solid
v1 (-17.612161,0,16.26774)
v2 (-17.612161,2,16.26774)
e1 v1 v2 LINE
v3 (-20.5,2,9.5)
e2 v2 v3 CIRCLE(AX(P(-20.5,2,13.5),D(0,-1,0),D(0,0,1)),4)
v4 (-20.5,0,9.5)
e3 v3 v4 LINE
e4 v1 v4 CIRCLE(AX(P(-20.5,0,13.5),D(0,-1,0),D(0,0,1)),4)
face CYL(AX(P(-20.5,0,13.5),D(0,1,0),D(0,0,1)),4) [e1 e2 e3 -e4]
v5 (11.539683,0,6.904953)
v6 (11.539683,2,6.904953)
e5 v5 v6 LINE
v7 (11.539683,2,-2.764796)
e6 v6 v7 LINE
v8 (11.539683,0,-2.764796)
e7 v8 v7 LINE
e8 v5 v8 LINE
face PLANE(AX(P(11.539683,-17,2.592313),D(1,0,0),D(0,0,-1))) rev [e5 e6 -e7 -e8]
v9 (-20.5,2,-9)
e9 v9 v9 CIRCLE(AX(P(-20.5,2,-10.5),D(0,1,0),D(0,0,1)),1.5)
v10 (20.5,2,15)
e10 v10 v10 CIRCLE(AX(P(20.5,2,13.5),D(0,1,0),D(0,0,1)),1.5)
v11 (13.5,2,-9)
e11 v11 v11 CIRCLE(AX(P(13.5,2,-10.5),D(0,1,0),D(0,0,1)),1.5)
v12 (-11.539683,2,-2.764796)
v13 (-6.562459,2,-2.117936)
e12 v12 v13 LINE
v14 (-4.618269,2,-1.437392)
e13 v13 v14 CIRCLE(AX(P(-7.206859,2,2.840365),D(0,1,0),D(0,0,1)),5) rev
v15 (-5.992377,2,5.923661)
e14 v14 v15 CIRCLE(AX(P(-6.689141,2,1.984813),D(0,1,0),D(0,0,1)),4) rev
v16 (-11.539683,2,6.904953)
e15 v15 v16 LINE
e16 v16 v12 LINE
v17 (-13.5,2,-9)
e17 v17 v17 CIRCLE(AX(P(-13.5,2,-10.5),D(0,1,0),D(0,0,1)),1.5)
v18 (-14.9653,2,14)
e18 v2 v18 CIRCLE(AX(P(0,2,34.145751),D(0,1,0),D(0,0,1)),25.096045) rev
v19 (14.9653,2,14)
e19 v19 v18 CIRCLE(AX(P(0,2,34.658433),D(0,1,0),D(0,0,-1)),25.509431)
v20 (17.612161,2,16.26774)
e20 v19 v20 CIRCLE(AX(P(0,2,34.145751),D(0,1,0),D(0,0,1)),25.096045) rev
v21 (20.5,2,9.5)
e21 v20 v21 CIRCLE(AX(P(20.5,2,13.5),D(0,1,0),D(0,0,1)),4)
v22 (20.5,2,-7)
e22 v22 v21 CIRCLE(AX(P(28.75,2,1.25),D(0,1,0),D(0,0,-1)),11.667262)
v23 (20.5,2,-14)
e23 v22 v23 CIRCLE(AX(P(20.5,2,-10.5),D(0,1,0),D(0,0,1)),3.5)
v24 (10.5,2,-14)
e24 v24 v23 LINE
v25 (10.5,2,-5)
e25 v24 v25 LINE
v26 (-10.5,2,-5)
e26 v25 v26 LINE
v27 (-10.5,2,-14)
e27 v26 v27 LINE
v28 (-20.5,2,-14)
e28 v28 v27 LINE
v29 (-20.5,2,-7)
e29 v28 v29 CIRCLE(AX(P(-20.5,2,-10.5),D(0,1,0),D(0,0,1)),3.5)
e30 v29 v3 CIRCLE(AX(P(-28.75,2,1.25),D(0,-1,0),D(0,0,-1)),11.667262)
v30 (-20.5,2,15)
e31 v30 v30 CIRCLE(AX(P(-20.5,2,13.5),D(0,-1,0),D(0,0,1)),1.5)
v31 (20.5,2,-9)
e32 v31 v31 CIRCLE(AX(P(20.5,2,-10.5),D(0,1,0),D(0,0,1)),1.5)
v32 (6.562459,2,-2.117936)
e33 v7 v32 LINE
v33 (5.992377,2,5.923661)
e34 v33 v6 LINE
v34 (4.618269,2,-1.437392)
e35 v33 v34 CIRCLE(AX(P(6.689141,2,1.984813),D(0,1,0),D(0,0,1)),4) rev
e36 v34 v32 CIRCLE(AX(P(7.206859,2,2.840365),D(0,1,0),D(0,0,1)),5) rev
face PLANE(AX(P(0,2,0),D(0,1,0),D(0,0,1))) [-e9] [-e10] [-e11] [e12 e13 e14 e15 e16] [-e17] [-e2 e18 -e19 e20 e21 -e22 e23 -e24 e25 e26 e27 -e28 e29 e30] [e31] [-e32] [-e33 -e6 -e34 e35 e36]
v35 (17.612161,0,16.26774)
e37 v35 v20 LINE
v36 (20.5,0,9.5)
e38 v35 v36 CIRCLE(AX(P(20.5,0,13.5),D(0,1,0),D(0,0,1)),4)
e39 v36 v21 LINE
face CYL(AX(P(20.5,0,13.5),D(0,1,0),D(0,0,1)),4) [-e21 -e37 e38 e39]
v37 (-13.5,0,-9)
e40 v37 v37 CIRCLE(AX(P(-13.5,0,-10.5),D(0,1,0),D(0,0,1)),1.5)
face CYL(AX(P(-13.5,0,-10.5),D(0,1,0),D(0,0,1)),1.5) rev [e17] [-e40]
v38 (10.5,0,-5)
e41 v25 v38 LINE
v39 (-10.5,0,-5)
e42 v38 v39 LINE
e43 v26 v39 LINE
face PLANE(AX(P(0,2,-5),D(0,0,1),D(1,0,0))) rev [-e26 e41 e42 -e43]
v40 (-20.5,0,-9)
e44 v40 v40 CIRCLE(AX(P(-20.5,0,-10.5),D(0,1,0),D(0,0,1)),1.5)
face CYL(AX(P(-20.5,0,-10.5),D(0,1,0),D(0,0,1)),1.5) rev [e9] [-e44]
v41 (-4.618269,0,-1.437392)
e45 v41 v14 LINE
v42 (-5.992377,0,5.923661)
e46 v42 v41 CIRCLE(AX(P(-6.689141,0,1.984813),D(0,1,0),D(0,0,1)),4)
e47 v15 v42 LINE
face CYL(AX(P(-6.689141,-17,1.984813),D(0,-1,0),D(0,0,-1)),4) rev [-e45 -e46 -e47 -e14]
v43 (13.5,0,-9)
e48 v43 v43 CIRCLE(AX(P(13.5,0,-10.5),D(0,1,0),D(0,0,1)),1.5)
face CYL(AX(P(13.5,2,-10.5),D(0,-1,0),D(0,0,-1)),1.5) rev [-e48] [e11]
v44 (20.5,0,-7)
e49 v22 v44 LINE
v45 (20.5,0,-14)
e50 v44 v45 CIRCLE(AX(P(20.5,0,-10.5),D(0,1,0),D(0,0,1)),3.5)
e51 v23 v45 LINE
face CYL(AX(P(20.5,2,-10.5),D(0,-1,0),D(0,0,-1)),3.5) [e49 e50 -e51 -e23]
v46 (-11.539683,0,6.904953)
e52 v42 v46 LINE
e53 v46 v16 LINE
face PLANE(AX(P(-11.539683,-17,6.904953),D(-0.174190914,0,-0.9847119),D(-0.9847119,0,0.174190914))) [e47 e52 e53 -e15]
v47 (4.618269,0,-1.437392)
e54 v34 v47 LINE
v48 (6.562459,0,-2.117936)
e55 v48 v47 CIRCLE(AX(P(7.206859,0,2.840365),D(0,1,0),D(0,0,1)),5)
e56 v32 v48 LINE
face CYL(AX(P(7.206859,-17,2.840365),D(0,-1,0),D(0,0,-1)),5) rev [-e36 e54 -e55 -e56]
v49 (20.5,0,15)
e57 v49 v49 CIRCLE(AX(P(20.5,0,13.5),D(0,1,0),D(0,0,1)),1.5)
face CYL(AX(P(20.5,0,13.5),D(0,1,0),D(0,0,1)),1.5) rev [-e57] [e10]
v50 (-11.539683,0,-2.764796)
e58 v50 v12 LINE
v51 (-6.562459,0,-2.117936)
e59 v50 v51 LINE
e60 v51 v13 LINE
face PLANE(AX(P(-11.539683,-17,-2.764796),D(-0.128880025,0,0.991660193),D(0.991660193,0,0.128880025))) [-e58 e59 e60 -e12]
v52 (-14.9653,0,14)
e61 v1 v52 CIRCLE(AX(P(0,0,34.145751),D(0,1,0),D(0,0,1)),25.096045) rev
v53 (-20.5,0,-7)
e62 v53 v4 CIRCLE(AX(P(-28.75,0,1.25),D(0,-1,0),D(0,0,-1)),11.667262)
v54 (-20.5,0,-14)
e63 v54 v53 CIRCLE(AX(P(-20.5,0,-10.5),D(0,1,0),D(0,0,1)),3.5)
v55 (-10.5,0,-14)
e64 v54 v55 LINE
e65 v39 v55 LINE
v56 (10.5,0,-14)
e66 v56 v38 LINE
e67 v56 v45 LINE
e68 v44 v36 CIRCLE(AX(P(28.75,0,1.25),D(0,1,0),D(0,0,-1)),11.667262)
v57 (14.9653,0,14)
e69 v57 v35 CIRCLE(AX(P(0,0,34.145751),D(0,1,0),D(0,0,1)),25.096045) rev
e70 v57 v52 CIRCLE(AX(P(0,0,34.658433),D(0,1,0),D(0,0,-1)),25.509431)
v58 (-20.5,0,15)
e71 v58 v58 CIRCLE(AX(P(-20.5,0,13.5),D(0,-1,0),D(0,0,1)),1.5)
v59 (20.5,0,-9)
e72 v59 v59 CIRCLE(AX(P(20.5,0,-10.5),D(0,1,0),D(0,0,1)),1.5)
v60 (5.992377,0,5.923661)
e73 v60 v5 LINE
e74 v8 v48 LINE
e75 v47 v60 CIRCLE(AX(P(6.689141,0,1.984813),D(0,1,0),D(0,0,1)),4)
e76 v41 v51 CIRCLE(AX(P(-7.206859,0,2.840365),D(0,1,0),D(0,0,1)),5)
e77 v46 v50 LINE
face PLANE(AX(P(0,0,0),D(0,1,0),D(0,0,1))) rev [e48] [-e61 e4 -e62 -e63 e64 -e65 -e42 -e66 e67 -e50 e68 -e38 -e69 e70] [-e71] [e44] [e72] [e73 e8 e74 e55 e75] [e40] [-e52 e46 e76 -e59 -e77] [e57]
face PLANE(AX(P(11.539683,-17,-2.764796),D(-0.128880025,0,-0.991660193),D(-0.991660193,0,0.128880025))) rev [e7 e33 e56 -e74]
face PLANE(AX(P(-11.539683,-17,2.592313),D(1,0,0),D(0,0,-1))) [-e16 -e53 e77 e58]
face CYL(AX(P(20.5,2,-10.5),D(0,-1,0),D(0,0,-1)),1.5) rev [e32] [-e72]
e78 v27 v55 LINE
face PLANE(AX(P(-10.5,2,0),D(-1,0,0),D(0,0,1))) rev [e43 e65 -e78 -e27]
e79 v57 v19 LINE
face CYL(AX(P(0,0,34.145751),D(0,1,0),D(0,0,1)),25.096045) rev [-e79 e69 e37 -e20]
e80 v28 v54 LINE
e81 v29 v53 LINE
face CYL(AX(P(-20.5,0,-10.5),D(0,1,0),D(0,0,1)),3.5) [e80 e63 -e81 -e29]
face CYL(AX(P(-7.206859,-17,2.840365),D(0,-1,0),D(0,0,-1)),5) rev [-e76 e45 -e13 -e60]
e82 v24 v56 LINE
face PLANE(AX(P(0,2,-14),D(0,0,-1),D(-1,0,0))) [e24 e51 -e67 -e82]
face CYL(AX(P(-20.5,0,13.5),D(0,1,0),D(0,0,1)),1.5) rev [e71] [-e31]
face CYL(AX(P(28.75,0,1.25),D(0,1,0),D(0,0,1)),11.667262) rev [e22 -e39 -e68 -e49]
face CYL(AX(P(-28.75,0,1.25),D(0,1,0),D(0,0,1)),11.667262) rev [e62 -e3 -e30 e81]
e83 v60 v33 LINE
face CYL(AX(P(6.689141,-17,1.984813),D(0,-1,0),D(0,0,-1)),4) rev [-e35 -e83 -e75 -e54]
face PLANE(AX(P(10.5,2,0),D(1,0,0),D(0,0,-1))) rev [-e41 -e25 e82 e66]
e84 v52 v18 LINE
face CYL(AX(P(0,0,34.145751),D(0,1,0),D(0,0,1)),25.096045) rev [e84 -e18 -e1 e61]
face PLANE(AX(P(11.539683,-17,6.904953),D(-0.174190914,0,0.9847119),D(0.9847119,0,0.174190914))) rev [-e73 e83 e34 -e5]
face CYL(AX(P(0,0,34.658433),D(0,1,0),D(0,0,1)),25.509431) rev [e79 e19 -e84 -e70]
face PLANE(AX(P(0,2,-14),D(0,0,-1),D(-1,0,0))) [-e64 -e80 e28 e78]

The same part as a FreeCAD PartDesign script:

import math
import FreeCAD as App
import Part
import Sketcher
from FreeCAD import Vector
Q = App.Units.Quantity


def edges_at(feature, points):
    """Names of the edges that pass closest to the given points."""
    edges = feature.Shape.Edges
    near = lambda p: min(range(len(edges)), key=lambda i: edges[i].distToShape(Part.Vertex(*p))[0])
    return sorted({f"Edge{near(p) + 1}" for p in points})


def add_polygon(sketch, points):
    """Adds a closed chain of lines whose ends are joined by coincident constraints."""
    first, n = sketch.GeometryCount, len(points)
    for a, b in zip(points, points[1:] + points[:1]):
        sketch.addGeometry(Part.LineSegment(App.Vector(*a, 0), App.Vector(*b, 0)), False)
    for i in range(n):
        sketch.addConstraint(Sketcher.Constraint("Coincident", first + i, 2, first + (i + 1) % n, 1))

doc = App.newDocument("Part")
body = doc.addObject("PartDesign::Body", "Body")

sketch1 = doc.addObject("Sketcher::SketchObject", "Sketch")
body.addObject(sketch1)
sketch1.AttachmentSupport = (doc.XZ_Plane, [""])
sketch1.MapMode = "FlatFace"
sketch1.addGeometry([
    Part.LineSegment(Vector(20.5, -14, 0), Vector(10.5, -14, 0)),
    Part.LineSegment(Vector(10.5, -14, 0), Vector(10.5, -5, 0)),
    Part.LineSegment(Vector(10.5, -5, 0), Vector(-10.5, -5, 0)),
    Part.LineSegment(Vector(-10.5, -5, 0), Vector(-10.5, -14, 0)),
    Part.LineSegment(Vector(-10.5, -14, 0), Vector(-20.5, -14, 0)),
    Part.LineSegment(Vector(-20.5, -14, 0), Vector(-20.5, 14, 0)),
    Part.ArcOfCircle(Part.Circle(Vector(0, 35.5, 0), Vector(0, 0, 1), 29.7), math.radians(-134), math.radians(-46)),
    Part.LineSegment(Vector(20.5, 14, 0), Vector(20.5, -7, 0)),
    Part.ArcOfCircle(Part.Circle(Vector(20.5, -10.5, 0), Vector(0, 0, 1), 3.5), math.radians(0), math.radians(90)),
    Part.ArcOfCircle(Part.Circle(Vector(20.5, -10.5, 0), Vector(0, 0, 1), 3.5), math.radians(-90), math.radians(0)),
    Part.Circle(Vector(13.5, -10.5, 0), Vector(0, 0, 1), 1.5),
    Part.ArcOfCircle(Part.Circle(Vector(20.5, -10.5, 0), Vector(0, 0, 1), 1.5), math.radians(90), math.radians(270)),
    Part.ArcOfCircle(Part.Circle(Vector(20.5, -10.5, 0), Vector(0, 0, 1), 1.5), math.radians(-90), math.radians(0)),
    Part.ArcOfCircle(Part.Circle(Vector(20.5, -10.5, 0), Vector(0, 0, 1), 1.5), math.radians(0), math.radians(90)),
], False)
sketch1.addConstraint([
    Sketcher.Constraint("Coincident", 0, 2, 1, 1),
    Sketcher.Constraint("Coincident", 1, 2, 2, 1),
    Sketcher.Constraint("Coincident", 2, 2, 3, 1),
    Sketcher.Constraint("Coincident", 3, 2, 4, 1),
    Sketcher.Constraint("Coincident", 4, 2, 5, 1),
    Sketcher.Constraint("Coincident", 5, 2, 6, 1),
    Sketcher.Constraint("Coincident", 6, 2, 7, 1),
    Sketcher.Constraint("Coincident", 7, 2, 8, 2),
    Sketcher.Constraint("Tangent", 8, 1, 9, 2),
    Sketcher.Constraint("Tangent", 9, 1, 0, 1),
    Sketcher.Constraint("Tangent", 11, 2, 12, 1),
    Sketcher.Constraint("Tangent", 12, 2, 13, 1),
    Sketcher.Constraint("Tangent", 13, 2, 11, 1),
    Sketcher.Constraint("Horizontal", 0),
    Sketcher.Constraint("Vertical", 1),
    Sketcher.Constraint("Horizontal", 2),
    Sketcher.Constraint("Vertical", 3),
    Sketcher.Constraint("Horizontal", 4),
    Sketcher.Constraint("Vertical", 5),
    Sketcher.Constraint("Vertical", 7),
    Sketcher.Constraint("Coincident", 11, 3, 8, 3),
    Sketcher.Constraint("Equal", 8, 9),
    Sketcher.Constraint("Equal", 10, 11),
    Sketcher.Constraint("Symmetric", 4, 2, 6, 2, -1, 1),
    Sketcher.Constraint("Symmetric", 5, 2, 9, 1, -1, 1),
    Sketcher.Constraint("Symmetric", 0, 2, 3, 2, -2),
    Sketcher.Constraint("Horizontal", 9, 3, 10, 3),
    Sketcher.Constraint("Horizontal", 13, 3, 8, 1),
    Sketcher.Constraint("Horizontal", 8, 1, 12, 2),
    Sketcher.Constraint("Vertical", 9, 1, 11, 2),
    Sketcher.Constraint("Vertical", 11, 2, 13, 2),
    Sketcher.Constraint("Equal", 2, 7),
    Sketcher.Constraint("Diameter", 10, Q("3 mm")),
    Sketcher.Constraint("Radius", 8, Q("3.5 mm")),
    Sketcher.Constraint("DistanceX", 0, 2, 0, 1, Q("10 mm")),
    Sketcher.Constraint("DistanceX", 2, 2, 2, 1, Q("21 mm")),
    Sketcher.Constraint("DistanceY", 1, 1, 1, 2, Q("9 mm")),
    Sketcher.Constraint("DistanceX", 10, 3, 8, 3, Q("7 mm")),
    Sketcher.Constraint("Radius", 6, Q("29.698485 mm")),
])
pad1 = doc.addObject("PartDesign::Pad", "Pad")
body.addObject(pad1)
pad1.Profile = sketch1
pad1.Length = 2
pad1.Reversed = True

sketch2 = doc.addObject("Sketcher::SketchObject", "Sketch001")
body.addObject(sketch2)
sketch2.AttachmentSupport = (doc.XZ_Plane, [""])
sketch2.MapMode = "FlatFace"
sketch2.AttachmentOffset = App.Placement(Vector(0, 0, -2), App.Rotation())
sketch2.addGeometry(Part.Circle(Vector(-20.5, -10.5, 0), Vector(0, 0, 1), 3.5), False)
sketch2.addConstraint([
    Sketcher.Constraint("Diameter", 0, Q("7 mm")),
    Sketcher.Constraint("DistanceX", 0, 3, -1, 1, Q("20.5 mm")),
    Sketcher.Constraint("DistanceY", 0, 3, -1, 1, Q("10.5 mm")),
])
pad2 = doc.addObject("PartDesign::Pad", "Pad001")
body.addObject(pad2)
pad2.Profile = sketch2
pad2.Length = 2

sketch3 = doc.addObject("Sketcher::SketchObject", "Sketch002")
body.addObject(sketch3)
sketch3.AttachmentSupport = (doc.XZ_Plane, [""])
sketch3.MapMode = "FlatFace"
sketch3.AttachmentOffset = App.Placement(Vector(0, 0, -2), App.Rotation())
sketch3.addGeometry(Part.Circle(Vector(-20.5, -10.5, 0), Vector(0, 0, 1), 1.5), False)
sketch3.addConstraint([
    Sketcher.Constraint("Diameter", 0, Q("3 mm")),
    Sketcher.Constraint("DistanceX", 0, 3, -1, 1, Q("20.5 mm")),
    Sketcher.Constraint("DistanceY", 0, 3, -1, 1, Q("10.5 mm")),
])
pocket1 = doc.addObject("PartDesign::Pocket", "Pocket")
body.addObject(pocket1)
pocket1.Profile = sketch3
pocket1.Length = 2
pocket1.Reversed = True

sketch4 = doc.addObject("Sketcher::SketchObject", "Sketch003")
body.addObject(sketch4)
sketch4.AttachmentSupport = (doc.XZ_Plane, [""])
sketch4.MapMode = "FlatFace"
sketch4.AttachmentOffset = App.Placement(Vector(0, 0, -2), App.Rotation())
sketch4.addGeometry(Part.Circle(Vector(-13.5, -10.5, 0), Vector(0, 0, 1), 1.5), False)
sketch4.addConstraint([
    Sketcher.Constraint("Diameter", 0, Q("3 mm")),
    Sketcher.Constraint("DistanceX", 0, 3, -1, 1, Q("13.5 mm")),
    Sketcher.Constraint("DistanceY", 0, 3, -1, 1, Q("10.5 mm")),
])
pocket2 = doc.addObject("PartDesign::Pocket", "Pocket001")
body.addObject(pocket2)
pocket2.Profile = sketch4
pocket2.Length = 2
pocket2.Reversed = True

sketch5 = doc.addObject("Sketcher::SketchObject", "Sketch004")
body.addObject(sketch5)
sketch5.AttachmentSupport = (doc.XZ_Plane, [""])
sketch5.MapMode = "FlatFace"
sketch5.addGeometry([
    Part.LineSegment(Vector(-20, 14, 0), Vector(20, 14, 0)),
    Part.ArcOfCircle(Part.Circle(Vector(0, 35, 0), Vector(0, 0, 1), 30), math.radians(-134), math.radians(-46)),
], False)
sketch5.addConstraint([
    Sketcher.Constraint("Coincident", 0, 1, 1, 1),
    Sketcher.Constraint("Coincident", 1, 2, 0, 2),
    Sketcher.Constraint("Horizontal", 0),
    Sketcher.Constraint("PointOnObject", 1, 3, -2),
    Sketcher.Constraint("DistanceX", 0, 1, 0, 2, Q("41 mm")),
    Sketcher.Constraint("DistanceY", -1, 1, 0, 1, Q("14 mm")),
    Sketcher.Constraint("Radius", 1, Q("29.698485 mm")),
])
pad3 = doc.addObject("PartDesign::Pad", "Pad002")
body.addObject(pad3)
pad3.Profile = sketch5
pad3.Length = 2
pad3.Reversed = True

sketch6 = doc.addObject("Sketcher::SketchObject", "Sketch005")
body.addObject(sketch6)
sketch6.AttachmentSupport = (doc.XZ_Plane, [""])
sketch6.MapMode = "FlatFace"
sketch6.AttachmentOffset = App.Placement(Vector(0, 0, -2), App.Rotation())
sketch6.addGeometry(Part.Circle(Vector(20.5, 13.5, 0), Vector(0, 0, 1), 4), False)
sketch6.addConstraint([
    Sketcher.Constraint("Diameter", 0, Q("8 mm")),
    Sketcher.Constraint("DistanceX", -1, 1, 0, 3, Q("20.5 mm")),
    Sketcher.Constraint("DistanceY", -1, 1, 0, 3, Q("13.5 mm")),
])
pad4 = doc.addObject("PartDesign::Pad", "Pad003")
body.addObject(pad4)
pad4.Profile = sketch6
pad4.Length = 2

sketch7 = doc.addObject("Sketcher::SketchObject", "Sketch006")
body.addObject(sketch7)
sketch7.AttachmentSupport = (doc.XZ_Plane, [""])
sketch7.MapMode = "FlatFace"
sketch7.AttachmentOffset = App.Placement(Vector(0, 0, -2), App.Rotation())
sketch7.addGeometry(Part.Circle(Vector(20.5, 13.5, 0), Vector(0, 0, 1), 1.5), False)
sketch7.addConstraint([
    Sketcher.Constraint("Diameter", 0, Q("3 mm")),
    Sketcher.Constraint("DistanceX", -1, 1, 0, 3, Q("20.5 mm")),
    Sketcher.Constraint("DistanceY", -1, 1, 0, 3, Q("13.5 mm")),
])
pocket3 = doc.addObject("PartDesign::Pocket", "Pocket002")
body.addObject(pocket3)
pocket3.Profile = sketch7
pocket3.Length = 2
pocket3.Reversed = True

sketch8 = doc.addObject("Sketcher::SketchObject", "Sketch007")
body.addObject(sketch8)
sketch8.AttachmentSupport = (doc.XZ_Plane, [""])
sketch8.MapMode = "FlatFace"
sketch8.AttachmentOffset = App.Placement(Vector(0, 0, -2), App.Rotation())
sketch8.addGeometry([
    Part.LineSegment(Vector(20, 10, 0), Vector(20, -7, 0)),
    Part.ArcOfCircle(Part.Circle(Vector(29, 1, 0), Vector(0, 0, 1), 12), math.radians(135), math.radians(225)),
], False)
sketch8.addConstraint([
    Sketcher.Constraint("Coincident", 0, 1, 1, 1),
    Sketcher.Constraint("Coincident", 1, 2, 0, 2),
    Sketcher.Constraint("Vertical", 0),
    Sketcher.Constraint("DistanceY", 0, 2, 0, 1, Q("16.5 mm")),
    Sketcher.Constraint("DistanceY", 1, 2, -1, 1, Q("7 mm")),
    Sketcher.Constraint("DistanceX", -1, 1, 0, 1, Q("20.5 mm")),
    Sketcher.Constraint("DistanceX", -1, 1, 1, 3, Q("28.75 mm")),
])
pocket4 = doc.addObject("PartDesign::Pocket", "Pocket003")
body.addObject(pocket4)
pocket4.Profile = sketch8
pocket4.Length = 2
pocket4.Reversed = True
doc.recompute()

mirrored = doc.addObject("PartDesign::Mirrored", "Mirrored")
body.addObject(mirrored)
mirrored.Originals = [pad4, pocket3, pocket4]
mirrored.MirrorPlane = (doc.YZ_Plane, [""])
body.Tip = mirrored

sketch9 = doc.addObject("Sketcher::SketchObject", "Sketch008")
body.addObject(sketch9)
sketch9.AttachmentSupport = (doc.XZ_Plane, [""])
sketch9.MapMode = "FlatFace"
sketch9.AttachmentOffset = App.Placement(Vector(0, 0, -2), App.Rotation())
sketch9.addGeometry([
    Part.LineSegment(Vector(-15, 14, 0), Vector(-16.5, 14, 0)),
    Part.ArcOfCircle(Part.Circle(Vector(-20.5, 13.5, 0), Vector(0, 0, 1), 4), math.radians(7), math.radians(44)),
    Part.ArcOfCircle(Part.Circle(Vector(0, 34.1, 0), Vector(0, 0, 1), 25.1), math.radians(-134.57), math.radians(-126.61)),
    Part.LineSegment(Vector(16.5, 14, 0), Vector(15, 14, 0)),
    Part.ArcOfCircle(Part.Circle(Vector(0, 34.1, 0), Vector(0, 0, 1), 25.1), math.radians(-53.39), math.radians(-45.43)),
    Part.ArcOfCircle(Part.Circle(Vector(20.5, 13.5, 0), Vector(0, 0, 1), 4), math.radians(136), math.radians(173)),
], False)
sketch9.addConstraint([
    Sketcher.Constraint("Coincident", 0, 2, 1, 1),
    Sketcher.Constraint("Coincident", 1, 2, 2, 1),
    Sketcher.Constraint("Coincident", 2, 2, 0, 1),
    Sketcher.Constraint("Coincident", 3, 2, 4, 1),
    Sketcher.Constraint("Coincident", 4, 2, 5, 1),
    Sketcher.Constraint("Coincident", 5, 2, 3, 1),
    Sketcher.Constraint("Horizontal", 0),
    Sketcher.Constraint("Horizontal", 3),
    Sketcher.Constraint("Coincident", 4, 3, 2, 3),
    Sketcher.Constraint("Equal", 2, 4),
    Sketcher.Constraint("Equal", 1, 5),
    Sketcher.Constraint("Symmetric", 1, 3, 5, 3, -2),
    Sketcher.Constraint("Symmetric", 2, 2, 3, 2, -2),
    Sketcher.Constraint("Radius", 1, Q("4 mm")),
    Sketcher.Constraint("DistanceY", -1, 1, 0, 2, Q("14 mm")),
    Sketcher.Constraint("DistanceX", 1, 3, 5, 3, Q("41 mm")),
    Sketcher.Constraint("DistanceY", -1, 1, 1, 3, Q("13.5 mm")),
    Sketcher.Constraint("Radius", 2, Q("25.096046 mm")),
    Sketcher.Constraint("DistanceX", 2, 2, -1, 1, Q("14.9653 mm")),
])
pad5 = doc.addObject("PartDesign::Pad", "Pad004")
body.addObject(pad5)
pad5.Profile = sketch9
pad5.Length = 2

sketch10 = doc.addObject("Sketcher::SketchObject", "Sketch009")
body.addObject(sketch10)
sketch10.AttachmentSupport = (doc.XZ_Plane, [""])
sketch10.MapMode = "FlatFace"
sketch10.AttachmentOffset = App.Placement(Vector(0, 0, -2), App.Rotation())
sketch10.addGeometry([
    Part.LineSegment(Vector(-15, 14, 0), Vector(15, 14, 0)),
    Part.ArcOfCircle(Part.Circle(Vector(0, 35, 0), Vector(0, 0, 1), 26), math.radians(-126), math.radians(-54)),
], False)
sketch10.addConstraint([
    Sketcher.Constraint("Coincident", 0, 1, 1, 1),
    Sketcher.Constraint("Coincident", 1, 2, 0, 2),
    Sketcher.Constraint("Horizontal", 0),
    Sketcher.Constraint("PointOnObject", 1, 3, -2),
    Sketcher.Constraint("DistanceY", -1, 1, 0, 1, Q("14 mm")),
    Sketcher.Constraint("Radius", 1, Q("25.509431 mm")),
    Sketcher.Constraint("DistanceX", 0, 1, 0, 2, Q("29.9306 mm")),
])
pocket5 = doc.addObject("PartDesign::Pocket", "Pocket004")
body.addObject(pocket5)
pocket5.Profile = sketch10
pocket5.Length = 2
pocket5.Reversed = True

sketch11 = doc.addObject("Sketcher::SketchObject", "Sketch010")
body.addObject(sketch11)
sketch11.AttachmentSupport = (doc.XZ_Plane, [""])
sketch11.MapMode = "FlatFace"
sketch11.AttachmentOffset = App.Placement(Vector(0, 0, -2), App.Rotation())
add_polygon(sketch11, [(12, -3), (2, -2), (2, 5), (12, 7)])
sketch11.addConstraint([
    Sketcher.Constraint("Vertical", 1),
    Sketcher.Constraint("Vertical", 3),
    Sketcher.Constraint("DistanceY", 3, 2, 3, 1, Q("9.669749 mm")),
    Sketcher.Constraint("Distance", 2, Q("9.47772 mm")),
    Sketcher.Constraint("DistanceY", 1, 1, 1, 2, Q("6.805886 mm")),
    Sketcher.Constraint("DistanceX", -1, 1, 0, 2, Q("2.206859 mm")),
    Sketcher.Constraint("DistanceY", -1, 1, 1, 2, Q("5.254021 mm")),
    Sketcher.Constraint("DistanceY", 0, 2, 2, 2, Q("8.456819 mm")),
])
pocket6 = doc.addObject("PartDesign::Pocket", "Pocket005")
body.addObject(pocket6)
pocket6.Profile = sketch11
pocket6.Length = 19
pocket6.Reversed = True
doc.recompute()

fillet = doc.addObject("PartDesign::Fillet", "Fillet")
body.addObject(fillet)
fillet.Base = (pocket6, edges_at(pocket6, [(2.207, 1, -1.552)]))
fillet.Radius = 5
doc.recompute()

fillet2 = doc.addObject("PartDesign::Fillet", "Fillet001")
body.addObject(fillet2)
fillet2.Base = (fillet, edges_at(fillet, [(2.207, 1, 5.254)]))
fillet2.Radius = 4
doc.recompute()

mirrored2 = doc.addObject("PartDesign::Mirrored", "Mirrored001")
body.addObject(mirrored2)
mirrored2.Originals = [pocket6]
mirrored2.MirrorPlane = (doc.YZ_Plane, [""])
body.Tip = mirrored2
doc.recompute()

fillet3 = doc.addObject("PartDesign::Fillet", "Fillet002")
body.addObject(fillet3)
fillet3.Base = (mirrored2, edges_at(mirrored2, [(-2.207, 1, -1.552)]))
fillet3.Radius = 5
doc.recompute()

fillet4 = doc.addObject("PartDesign::Fillet", "Fillet003")
body.addObject(fillet4)
fillet4.Base = (fillet3, edges_at(fillet3, [(-2.207, 1, 5.254)]))
fillet4.Radius = 4

doc.recompute()
